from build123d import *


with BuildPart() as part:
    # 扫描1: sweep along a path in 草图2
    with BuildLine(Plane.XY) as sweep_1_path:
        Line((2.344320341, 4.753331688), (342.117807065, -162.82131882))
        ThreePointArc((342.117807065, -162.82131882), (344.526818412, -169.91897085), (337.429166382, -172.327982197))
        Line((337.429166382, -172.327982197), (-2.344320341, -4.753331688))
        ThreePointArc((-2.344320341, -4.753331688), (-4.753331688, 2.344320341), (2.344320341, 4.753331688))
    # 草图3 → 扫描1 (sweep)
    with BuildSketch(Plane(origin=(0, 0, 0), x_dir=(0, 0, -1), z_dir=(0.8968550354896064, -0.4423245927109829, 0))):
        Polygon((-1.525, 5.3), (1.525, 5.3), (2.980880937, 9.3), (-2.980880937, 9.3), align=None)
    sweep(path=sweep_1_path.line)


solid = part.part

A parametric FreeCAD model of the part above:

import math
import FreeCAD as App
import Part
import Sketcher

V = App.Vector
Q = App.Units.Quantity


def add_polygon(sketch, points):
    """Adds a closed chain of lines whose ends are joined by coincident constraints."""
    first, n = sketch.GeometryCount, len(points)
    for a, b in zip(points, points[1:] + points[:1]):
        sketch.addGeometry(Part.LineSegment(App.Vector(*a, 0), App.Vector(*b, 0)), False)
    for i in range(n):
        sketch.addConstraint(Sketcher.Constraint("Coincident", first + i, 2, first + (i + 1) % n, 1))

doc = App.newDocument("Part")
body = doc.addObject("PartDesign::Body", "Body")

sketch1 = body.newObject("Sketcher::SketchObject", "Sketch")
sketch1.Placement = App.Placement(V(0, 0, 0), App.Rotation(V(0, 0, -1), V(0.442324593, 0.896855035, 0), V(0.896855035, -0.442324593, 0), "ZXY"))
add_polygon(sketch1, [(-1.525, 5.3), (1.525, 5.3), (2.980881, 9.3), (-2.980881, 9.3)])
sketch1.addConstraint(Sketcher.Constraint("Horizontal", 0))
sketch1.addConstraint(Sketcher.Constraint("Horizontal", 2))
sketch1.addConstraint(Sketcher.Constraint("Equal", 1, 3))
sketch1.addConstraint(Sketcher.Constraint("Angle", 1, Q("70 deg")))
sketch1.addConstraint(Sketcher.Constraint("DistanceY", 0, 2, 1, 2, Q("4 mm")))
sketch1.addConstraint(Sketcher.Constraint("DistanceX", 0, 1, 0, 2, Q("3.05 mm")))
sketch1.addConstraint(Sketcher.Constraint("DistanceY", -1, 1, 0, 2, Q("5.3 mm")))
sketch1.addConstraint(Sketcher.Constraint("DistanceX", -1, 1, 0, 2, Q("1.525 mm")))

sketch2 = body.newObject("Sketcher::SketchObject", "Sketch001")
sketch2.AttachmentSupport = (doc.getObject("XY_Plane"), [""])
sketch2.MapMode = "FlatFace"
sketch2.addGeometry(Part.LineSegment(V(2.34432, 4.753332, 0), V(342.117807, -162.821319, 0)), False)
sketch2.addGeometry(Part.ArcOfCircle(Part.Circle(V(339.773487, -167.574651, 0), V(0, 0, 1), 5.3), math.radians(-116.252294), math.radians(63.747706)), False)
sketch2.addGeometry(Part.LineSegment(V(337.429166, -172.327982, 0), V(-2.34432, -4.753332, 0)), False)
sketch2.addGeometry(Part.ArcOfCircle(Part.Circle(V(0, 0, 0), V(0, 0, 1), 5.3), math.radians(63.747706), math.radians(243.747706)), False)
sketch2.addConstraint(Sketcher.Constraint("Tangent", 0, 2, 1, 2))
sketch2.addConstraint(Sketcher.Constraint("Tangent", 1, 1, 2, 1))
sketch2.addConstraint(Sketcher.Constraint("Tangent", 2, 2, 3, 2))
sketch2.addConstraint(Sketcher.Constraint("Tangent", 3, 1, 0, 1))
sketch2.addConstraint(Sketcher.Constraint("Coincident", 3, 3, -1, 1))
sketch2.addConstraint(Sketcher.Constraint("Equal", 1, 3))
sketch2.addConstraint(Sketcher.Constraint("Radius", 1, Q("5.3 mm")))
sketch2.addConstraint(Sketcher.Constraint("Distance", 0, Q("378.849952 mm")))
sketch2.addConstraint(Sketcher.Constraint("DistanceY", 1, 3, -1, 1, Q("167.574651 mm")))
doc.recompute()

additivepipe = body.newObject("PartDesign::AdditivePipe", "AdditivePipe")
additivepipe.Profile = sketch1
additivepipe.Spine = (sketch2, ["Edge1", "Edge2", "Edge3", "Edge4"])

doc.recompute()
